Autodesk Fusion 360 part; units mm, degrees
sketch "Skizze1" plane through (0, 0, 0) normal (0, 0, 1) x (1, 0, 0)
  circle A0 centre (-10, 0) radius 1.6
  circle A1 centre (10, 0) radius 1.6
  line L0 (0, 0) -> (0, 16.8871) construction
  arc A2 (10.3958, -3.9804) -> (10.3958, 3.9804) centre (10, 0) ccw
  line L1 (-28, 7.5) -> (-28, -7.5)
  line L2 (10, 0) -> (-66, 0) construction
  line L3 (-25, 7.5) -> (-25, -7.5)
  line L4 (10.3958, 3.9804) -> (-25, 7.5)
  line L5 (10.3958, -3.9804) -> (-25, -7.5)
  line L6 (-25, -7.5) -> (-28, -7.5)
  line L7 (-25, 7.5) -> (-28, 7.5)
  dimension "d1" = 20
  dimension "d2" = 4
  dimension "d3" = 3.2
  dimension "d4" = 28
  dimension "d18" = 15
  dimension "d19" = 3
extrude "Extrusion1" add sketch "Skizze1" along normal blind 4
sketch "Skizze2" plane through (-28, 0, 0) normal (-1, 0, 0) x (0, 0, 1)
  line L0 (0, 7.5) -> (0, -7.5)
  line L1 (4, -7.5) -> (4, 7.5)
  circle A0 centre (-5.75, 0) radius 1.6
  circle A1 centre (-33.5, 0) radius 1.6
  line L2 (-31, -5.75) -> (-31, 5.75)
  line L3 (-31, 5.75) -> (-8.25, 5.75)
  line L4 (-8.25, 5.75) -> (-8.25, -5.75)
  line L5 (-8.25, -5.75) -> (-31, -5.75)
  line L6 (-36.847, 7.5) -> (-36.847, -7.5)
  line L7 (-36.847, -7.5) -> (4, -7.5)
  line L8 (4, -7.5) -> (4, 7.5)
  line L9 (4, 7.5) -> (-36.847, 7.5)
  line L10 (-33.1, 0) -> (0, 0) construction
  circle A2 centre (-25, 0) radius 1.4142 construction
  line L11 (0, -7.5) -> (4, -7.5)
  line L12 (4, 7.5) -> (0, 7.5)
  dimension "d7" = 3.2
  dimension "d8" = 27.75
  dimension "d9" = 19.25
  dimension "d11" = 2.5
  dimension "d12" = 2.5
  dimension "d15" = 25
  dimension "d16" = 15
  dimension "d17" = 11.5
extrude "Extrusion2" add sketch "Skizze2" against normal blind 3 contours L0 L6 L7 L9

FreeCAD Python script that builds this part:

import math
import FreeCAD as App
import Part
import Sketcher

V = App.Vector


def add_polygon(sketch, points):
    """Adds a closed chain of lines whose ends are joined by coincident constraints."""
    first, n = sketch.GeometryCount, len(points)
    for a, b in zip(points, points[1:] + points[:1]):
        sketch.addGeometry(Part.LineSegment(App.Vector(*a, 0), App.Vector(*b, 0)), False)
    for i in range(n):
        sketch.addConstraint(Sketcher.Constraint("Coincident", first + i, 2, first + (i + 1) % n, 1))

doc = App.newDocument("Part")
body = doc.addObject("PartDesign::Body", "Body")

# Sketch on XY plane
sketch1 = doc.addObject("Sketcher::SketchObject", "Sketch")
body.addObject(sketch1)
sketch1.AttachmentSupport = (doc.XY_Plane, [""])
sketch1.MapMode = "FlatFace"
sketch1.addGeometry([
    Part.LineSegment(V(-25, -7.5, 0), V(10.4, -4, 0)),  # 0
    Part.ArcOfCircle(Part.Circle(V(10, 0, 0), V(0, 0, 1), 4), math.radians(-84), math.radians(84)),  # 1
    Part.LineSegment(V(10.4, 4, 0), V(-25, 7.5, 0)),  # 2
    Part.LineSegment(V(-25, 7.5, 0), V(-28, 7.5, 0)),  # 3
    Part.LineSegment(V(-28, 7.5, 0), V(-28, -7.5, 0)),  # 4
    Part.LineSegment(V(-28, -7.5, 0), V(-25, -7.5, 0)),  # 5
    Part.Circle(V(-10, 0, 0), V(0, 0, 1), 1.6),  # 6
    Part.Circle(V(10, 0, 0), V(0, 0, 1), 1.6),  # 7
], False)
sketch1.addConstraint([
    Sketcher.Constraint("Tangent", 0, 2, 1, 1),
    Sketcher.Constraint("Tangent", 1, 2, 2, 1),
    Sketcher.Constraint("Coincident", 2, 2, 3, 1),
    Sketcher.Constraint("Coincident", 3, 2, 4, 1),
    Sketcher.Constraint("Coincident", 4, 2, 5, 1),
    Sketcher.Constraint("Coincident", 5, 2, 0, 1),
    Sketcher.Constraint("Horizontal", 3),
    Sketcher.Constraint("Vertical", 4),
    Sketcher.Constraint("Horizontal", 5),
    Sketcher.Constraint("Coincident", 7, 3, 1, 3),
    Sketcher.Constraint("Equal", 6, 7),
    Sketcher.Constraint("Symmetric", 1, 3, 6, 3, -1, 1),
    Sketcher.Constraint("Symmetric", 0, 2, 1, 2, -1),
    Sketcher.Constraint("Vertical", 2, 2, 5, 2),
    Sketcher.Constraint("Radius", 1, 4.0),
    Sketcher.Constraint("Diameter", 6, 3.2),
    Sketcher.Constraint("DistanceX", 3, 2, 3, 1, 3.0),
    Sketcher.Constraint("DistanceY", 4, 2, 4, 1, 15.0),
    Sketcher.Constraint("DistanceX", 3, 2, -1, 1, 28.0),
    Sketcher.Constraint("DistanceX", 6, 3, 1, 3, 20.0),
])
pad1 = doc.addObject("PartDesign::Pad", "Pad")
body.addObject(pad1)
pad1.Profile = sketch1
pad1.Length = 4

# Sketch on YZ plane
sketch2 = doc.addObject("Sketcher::SketchObject", "Sketch001")
body.addObject(sketch2)
sketch2.AttachmentSupport = (doc.YZ_Plane, [""])
sketch2.MapMode = "FlatFace"
sketch2.AttachmentOffset = App.Placement(V(0, 0, -28), App.Rotation())
add_polygon(sketch2, [(-7.5, 0), (7.5, 0), (7.5, -36.8), (-7.5, -36.8)])  # lines 0-3
sketch2.addGeometry(Part.Circle(V(0, -33.5, 0), V(0, 0, 1), 1.6), False)  # 4
add_polygon(sketch2, [(-5.8, -8.2), (-5.8, -31), (5.8, -31), (5.8, -8.2)])  # lines 5-8
sketch2.addGeometry(Part.Circle(V(0, -5.8, 0), V(0, 0, 1), 1.6), False)  # 9
sketch2.addConstraint([
    Sketcher.Constraint("Horizontal", 0),
    Sketcher.Constraint("Vertical", 1),
    Sketcher.Constraint("Horizontal", 2),
    Sketcher.Constraint("Vertical", 3),
    Sketcher.Constraint("Vertical", 5),
    Sketcher.Constraint("Horizontal", 6),
    Sketcher.Constraint("Vertical", 7),
    Sketcher.Constraint("Horizontal", 8),
    Sketcher.Constraint("Equal", 4, 9),
    Sketcher.Constraint("Symmetric", 0, 2, 3, 2, -1, 1),
    Sketcher.Constraint("PointOnObject", 4, 3, -2),
    Sketcher.Constraint("PointOnObject", 9, 3, -2),
    Sketcher.Constraint("Diameter", 4, 3.2),
    Sketcher.Constraint("DistanceX", 0, 1, 0, 2, 15.0),
    Sketcher.Constraint("DistanceX", 6, 1, 6, 2, 11.5),
    Sketcher.Constraint("DistanceY", 4, 3, 5, 2, 2.5),
    Sketcher.Constraint("DistanceY", 7, 2, 9, 3, 2.5),
    Sketcher.Constraint("DistanceY", 4, 3, 9, 3, 27.75),
    Sketcher.Constraint("DistanceY", 5, 2, -1, 1, 31.0),
    Sketcher.Constraint("DistanceY", 1, 2, 1, 1, 36.847),
    Sketcher.Constraint("DistanceX", 5, 2, -1, 1, 5.75),
])
pad2 = doc.addObject("PartDesign::Pad", "Pad001")
body.addObject(pad2)
pad2.Profile = sketch2
pad2.Length = 3

doc.recompute()
